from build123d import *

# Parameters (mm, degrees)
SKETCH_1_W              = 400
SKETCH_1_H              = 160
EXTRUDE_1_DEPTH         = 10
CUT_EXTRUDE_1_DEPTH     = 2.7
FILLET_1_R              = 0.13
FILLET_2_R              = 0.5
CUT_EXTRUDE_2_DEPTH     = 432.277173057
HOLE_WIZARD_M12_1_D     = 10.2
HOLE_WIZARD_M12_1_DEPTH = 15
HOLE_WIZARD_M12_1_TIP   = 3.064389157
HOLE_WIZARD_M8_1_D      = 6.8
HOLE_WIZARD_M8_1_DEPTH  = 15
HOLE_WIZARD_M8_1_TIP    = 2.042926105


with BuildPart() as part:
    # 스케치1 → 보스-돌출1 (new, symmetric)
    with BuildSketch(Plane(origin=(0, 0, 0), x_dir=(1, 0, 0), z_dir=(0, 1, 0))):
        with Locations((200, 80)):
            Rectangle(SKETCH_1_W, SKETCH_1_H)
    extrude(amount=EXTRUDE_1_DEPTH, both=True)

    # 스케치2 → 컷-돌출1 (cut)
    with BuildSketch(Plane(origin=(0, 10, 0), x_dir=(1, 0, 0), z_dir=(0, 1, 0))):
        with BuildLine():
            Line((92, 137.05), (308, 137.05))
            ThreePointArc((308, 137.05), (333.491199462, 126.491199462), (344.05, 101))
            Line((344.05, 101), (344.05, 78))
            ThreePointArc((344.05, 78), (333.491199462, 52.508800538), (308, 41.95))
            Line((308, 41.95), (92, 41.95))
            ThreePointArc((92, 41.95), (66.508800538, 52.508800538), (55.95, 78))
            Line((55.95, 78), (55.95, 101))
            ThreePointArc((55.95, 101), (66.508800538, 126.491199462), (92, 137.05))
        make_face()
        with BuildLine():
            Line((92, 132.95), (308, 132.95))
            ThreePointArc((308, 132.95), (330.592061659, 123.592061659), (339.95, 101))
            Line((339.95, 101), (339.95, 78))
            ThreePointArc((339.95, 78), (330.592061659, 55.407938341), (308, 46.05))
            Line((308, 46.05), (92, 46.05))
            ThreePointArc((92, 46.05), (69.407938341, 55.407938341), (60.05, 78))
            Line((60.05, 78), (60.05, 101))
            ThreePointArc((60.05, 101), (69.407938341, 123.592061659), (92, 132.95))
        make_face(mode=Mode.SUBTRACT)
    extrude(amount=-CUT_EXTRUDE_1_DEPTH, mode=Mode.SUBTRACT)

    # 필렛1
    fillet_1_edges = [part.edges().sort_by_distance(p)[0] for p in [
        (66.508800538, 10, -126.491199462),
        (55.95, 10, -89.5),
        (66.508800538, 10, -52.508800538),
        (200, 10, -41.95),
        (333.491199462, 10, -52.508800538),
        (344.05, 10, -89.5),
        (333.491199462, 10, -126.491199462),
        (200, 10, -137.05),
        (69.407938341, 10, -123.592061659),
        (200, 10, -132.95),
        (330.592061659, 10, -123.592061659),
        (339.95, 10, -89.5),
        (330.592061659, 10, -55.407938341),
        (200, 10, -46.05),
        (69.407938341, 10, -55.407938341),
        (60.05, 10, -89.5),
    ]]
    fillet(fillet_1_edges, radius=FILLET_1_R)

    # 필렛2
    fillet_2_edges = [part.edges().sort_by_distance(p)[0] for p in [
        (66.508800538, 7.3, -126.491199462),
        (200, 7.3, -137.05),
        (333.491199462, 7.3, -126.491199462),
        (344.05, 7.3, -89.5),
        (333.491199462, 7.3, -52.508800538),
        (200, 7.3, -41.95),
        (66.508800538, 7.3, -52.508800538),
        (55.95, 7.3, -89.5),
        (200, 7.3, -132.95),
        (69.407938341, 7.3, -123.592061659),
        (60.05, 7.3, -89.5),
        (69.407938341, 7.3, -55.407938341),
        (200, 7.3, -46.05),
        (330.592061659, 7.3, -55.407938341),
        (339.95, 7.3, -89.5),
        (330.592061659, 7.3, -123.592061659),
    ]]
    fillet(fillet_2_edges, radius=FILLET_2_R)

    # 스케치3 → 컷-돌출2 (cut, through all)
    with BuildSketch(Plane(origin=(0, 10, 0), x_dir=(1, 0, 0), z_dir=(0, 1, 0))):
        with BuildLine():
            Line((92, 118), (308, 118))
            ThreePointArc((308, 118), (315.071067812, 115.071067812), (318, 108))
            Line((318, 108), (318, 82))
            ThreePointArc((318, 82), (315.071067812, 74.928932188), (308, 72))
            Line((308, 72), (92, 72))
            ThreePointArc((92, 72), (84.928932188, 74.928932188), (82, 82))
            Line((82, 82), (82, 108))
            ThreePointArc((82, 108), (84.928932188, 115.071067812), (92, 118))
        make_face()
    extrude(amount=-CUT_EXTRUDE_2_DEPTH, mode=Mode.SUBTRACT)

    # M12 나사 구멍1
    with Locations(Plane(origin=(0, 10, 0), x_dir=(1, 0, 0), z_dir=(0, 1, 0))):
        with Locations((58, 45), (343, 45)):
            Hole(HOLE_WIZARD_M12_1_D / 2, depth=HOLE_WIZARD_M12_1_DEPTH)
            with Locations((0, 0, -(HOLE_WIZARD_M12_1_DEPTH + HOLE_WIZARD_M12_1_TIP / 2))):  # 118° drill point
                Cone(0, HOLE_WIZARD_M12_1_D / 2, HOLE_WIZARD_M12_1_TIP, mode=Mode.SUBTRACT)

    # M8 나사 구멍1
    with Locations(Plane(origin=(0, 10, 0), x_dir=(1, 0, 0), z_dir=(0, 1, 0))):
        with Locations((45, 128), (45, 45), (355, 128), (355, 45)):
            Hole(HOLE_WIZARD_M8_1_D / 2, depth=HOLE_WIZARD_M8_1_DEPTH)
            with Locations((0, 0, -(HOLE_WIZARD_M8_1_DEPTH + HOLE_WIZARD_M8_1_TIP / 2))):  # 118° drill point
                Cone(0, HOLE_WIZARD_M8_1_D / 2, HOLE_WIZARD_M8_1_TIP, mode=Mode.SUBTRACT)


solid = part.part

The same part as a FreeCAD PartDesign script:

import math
import FreeCAD as App
import Part
import Sketcher


def edges_at(feature, points):
    """Names of the edges that pass closest to the given points."""
    edges = feature.Shape.Edges
    near = lambda p: min(range(len(edges)), key=lambda i: edges[i].distToShape(Part.Vertex(*p))[0])
    return sorted({f"Edge{near(p) + 1}" for p in points})


def add_polygon(sketch, points):
    """Adds a closed chain of lines whose ends are joined by coincident constraints."""
    first, n = sketch.GeometryCount, len(points)
    for a, b in zip(points, points[1:] + points[:1]):
        sketch.addGeometry(Part.LineSegment(App.Vector(*a, 0), App.Vector(*b, 0)), False)
    for i in range(n):
        sketch.addConstraint(Sketcher.Constraint("Coincident", first + i, 2, first + (i + 1) % n, 1))

doc = App.newDocument("Part")
body = doc.addObject("PartDesign::Body", "Body")

# Sketch on XZ plane
sketch1 = body.newObject("Sketcher::SketchObject", "Sketch")
sketch1.AttachmentSupport = (doc.getObject("XZ_Plane"), [""])
sketch1.MapMode = "FlatFace"
add_polygon(sketch1, [(0, -160), (0, 0), (400, 0), (400, -160)])  # lines 0-3
sketch1.addConstraint([
    Sketcher.Constraint("Vertical", 0),
    Sketcher.Constraint("Horizontal", 1),
    Sketcher.Constraint("Vertical", 2),
    Sketcher.Constraint("Horizontal", 3),
    Sketcher.Constraint("Coincident", 0, 2, -1, 1),
    Sketcher.Constraint("DistanceX", 1, 1, 1, 2, 400.0),
    Sketcher.Constraint("DistanceY", 0, 1, 0, 2, 160.0),
])
pad1 = body.newObject("PartDesign::Pad", "Pad")
pad1.Profile = sketch1
pad1.Length = 20
pad1.Midplane = True

# Sketch on XZ plane
sketch2 = body.newObject("Sketcher::SketchObject", "Sketch001")
sketch2.AttachmentSupport = (doc.getObject("XZ_Plane"), [""])
sketch2.MapMode = "FlatFace"
sketch2.AttachmentOffset = App.Placement(App.Vector(0, 0, -10), App.Rotation())
sketch2.addGeometry([
    Part.LineSegment(App.Vector(308, -137, 0), App.Vector(92, -137, 0)),  # 0
    Part.ArcOfCircle(Part.Circle(App.Vector(92, -101, 0), App.Vector(0, 0, 1), 36), math.radians(180), math.radians(270)),  # 1
    Part.LineSegment(App.Vector(56, -101, 0), App.Vector(56, -78, 0)),  # 2
    Part.ArcOfCircle(Part.Circle(App.Vector(92, -78, 0), App.Vector(0, 0, 1), 36), math.radians(90), math.radians(180)),  # 3
    Part.LineSegment(App.Vector(92, -42, 0), App.Vector(308, -42, 0)),  # 4
    Part.ArcOfCircle(Part.Circle(App.Vector(308, -78, 0), App.Vector(0, 0, 1), 36), math.radians(0), math.radians(90)),  # 5
    Part.LineSegment(App.Vector(344, -78, 0), App.Vector(344, -101, 0)),  # 6
    Part.ArcOfCircle(Part.Circle(App.Vector(308, -101, 0), App.Vector(0, 0, 1), 36), math.radians(-90), math.radians(0)),  # 7
    Part.LineSegment(App.Vector(92, -133, 0), App.Vector(308, -133, 0)),  # 8
    Part.ArcOfCircle(Part.Circle(App.Vector(308, -101, 0), App.Vector(0, 0, 1), 32), math.radians(-90), math.radians(0)),  # 9
    Part.LineSegment(App.Vector(340, -101, 0), App.Vector(340, -78, 0)),  # 10
    Part.ArcOfCircle(Part.Circle(App.Vector(308, -78, 0), App.Vector(0, 0, 1), 32), math.radians(0), math.radians(90)),  # 11
    Part.LineSegment(App.Vector(308, -46, 0), App.Vector(92, -46, 0)),  # 12
    Part.ArcOfCircle(Part.Circle(App.Vector(92, -78, 0), App.Vector(0, 0, 1), 32), math.radians(90), math.radians(180)),  # 13
    Part.LineSegment(App.Vector(60, -78, 0), App.Vector(60, -101, 0)),  # 14
    Part.ArcOfCircle(Part.Circle(App.Vector(92, -101, 0), App.Vector(0, 0, 1), 32), math.radians(180), math.radians(270)),  # 15
], False)
sketch2.addConstraint([
    Sketcher.Constraint("Tangent", 0, 2, 1, 2),
    Sketcher.Constraint("Tangent", 1, 1, 2, 1),
    Sketcher.Constraint("Tangent", 2, 2, 3, 2),
    Sketcher.Constraint("Tangent", 3, 1, 4, 1),
    Sketcher.Constraint("Tangent", 4, 2, 5, 2),
    Sketcher.Constraint("Tangent", 5, 1, 6, 1),
    Sketcher.Constraint("Tangent", 6, 2, 7, 2),
    Sketcher.Constraint("Tangent", 7, 1, 0, 1),
    Sketcher.Constraint("Tangent", 8, 2, 9, 1),
    Sketcher.Constraint("Tangent", 9, 2, 10, 1),
    Sketcher.Constraint("Tangent", 10, 2, 11, 1),
    Sketcher.Constraint("Tangent", 11, 2, 12, 1),
    Sketcher.Constraint("Tangent", 12, 2, 13, 1),
    Sketcher.Constraint("Tangent", 13, 2, 14, 1),
    Sketcher.Constraint("Tangent", 14, 2, 15, 1),
    Sketcher.Constraint("Tangent", 15, 2, 8, 1),
    Sketcher.Constraint("Horizontal", 0),
    Sketcher.Constraint("Vertical", 2),
    Sketcher.Constraint("Horizontal", 4),
    Sketcher.Constraint("Vertical", 6),
    Sketcher.Constraint("Horizontal", 8),
    Sketcher.Constraint("Vertical", 10),
    Sketcher.Constraint("Horizontal", 12),
    Sketcher.Constraint("Vertical", 14),
    Sketcher.Constraint("Coincident", 9, 3, 7, 3),
    Sketcher.Constraint("Coincident", 11, 3, 5, 3),
    Sketcher.Constraint("Coincident", 13, 3, 3, 3),
    Sketcher.Constraint("Equal", 1, 3),
    Sketcher.Constraint("Equal", 3, 5),
    Sketcher.Constraint("Equal", 5, 7),
    Sketcher.Constraint("Equal", 13, 15),
    Sketcher.Constraint("DistanceX", 0, 2, 0, 1, 216.0),
    Sketcher.Constraint("DistanceY", 2, 1, 2, 2, 23.0),
    Sketcher.Constraint("Radius", 1, 36.05),
    Sketcher.Constraint("Radius", 9, 31.95),
    Sketcher.Constraint("DistanceX", -1, 1, 1, 3, 92.0),
    Sketcher.Constraint("DistanceY", 1, 3, -1, 1, 101.0),
])
pocket1 = body.newObject("PartDesign::Pocket", "Pocket")
pocket1.Profile = sketch2
pocket1.Length = 2.7
pocket1.Reversed = True
doc.recompute()

fillet = body.newObject("PartDesign::Fillet", "Fillet")
fillet.Base = (pocket1, edges_at(pocket1, [
    (66.509, 10, -126.491),
    (55.95, 10, -89.5),
    (66.509, 10, -52.509),
    (200, 10, -41.95),
    (333.491, 10, -52.509),
    (344.05, 10, -89.5),
    (333.491, 10, -126.491),
    (200, 10, -137.05),
    (69.408, 10, -123.592),
    (200, 10, -132.95),
    (330.592, 10, -123.592),
    (339.95, 10, -89.5),
    (330.592, 10, -55.408),
    (200, 10, -46.05),
    (69.408, 10, -55.408),
    (60.05, 10, -89.5),
]))
fillet.Radius = 0.13
doc.recompute()

fillet2 = body.newObject("PartDesign::Fillet", "Fillet001")
fillet2.Base = (fillet, edges_at(fillet, [
    (66.509, 7.3, -126.491),
    (200, 7.3, -137.05),
    (333.491, 7.3, -126.491),
    (344.05, 7.3, -89.5),
    (333.491, 7.3, -52.509),
    (200, 7.3, -41.95),
    (66.509, 7.3, -52.509),
    (55.95, 7.3, -89.5),
    (200, 7.3, -132.95),
    (69.408, 7.3, -123.592),
    (60.05, 7.3, -89.5),
    (69.408, 7.3, -55.408),
    (200, 7.3, -46.05),
    (330.592, 7.3, -55.408),
    (339.95, 7.3, -89.5),
    (330.592, 7.3, -123.592),
]))
fillet2.Radius = 0.5

# Sketch on XZ plane
sketch3 = body.newObject("Sketcher::SketchObject", "Sketch002")
sketch3.AttachmentSupport = (doc.getObject("XZ_Plane"), [""])
sketch3.MapMode = "FlatFace"
sketch3.AttachmentOffset = App.Placement(App.Vector(0, 0, -10), App.Rotation())
sketch3.addGeometry([
    Part.LineSegment(App.Vector(308, -118, 0), App.Vector(92, -118, 0)),  # 0
    Part.ArcOfCircle(Part.Circle(App.Vector(92, -108, 0), App.Vector(0, 0, 1), 10), math.radians(180), math.radians(270)),  # 1
    Part.LineSegment(App.Vector(82, -108, 0), App.Vector(82, -82, 0)),  # 2
    Part.ArcOfCircle(Part.Circle(App.Vector(92, -82, 0), App.Vector(0, 0, 1), 10), math.radians(90), math.radians(180)),  # 3
    Part.LineSegment(App.Vector(92, -72, 0), App.Vector(308, -72, 0)),  # 4
    Part.ArcOfCircle(Part.Circle(App.Vector(308, -82, 0), App.Vector(0, 0, 1), 10), math.radians(0), math.radians(90)),  # 5
    Part.LineSegment(App.Vector(318, -82, 0), App.Vector(318, -108, 0)),  # 6
    Part.ArcOfCircle(Part.Circle(App.Vector(308, -108, 0), App.Vector(0, 0, 1), 10), math.radians(-90), math.radians(0)),  # 7
], False)
sketch3.addConstraint([
    Sketcher.Constraint("Tangent", 0, 2, 1, 2),
    Sketcher.Constraint("Tangent", 1, 1, 2, 1),
    Sketcher.Constraint("Tangent", 2, 2, 3, 2),
    Sketcher.Constraint("Tangent", 3, 1, 4, 1),
    Sketcher.Constraint("Tangent", 4, 2, 5, 2),
    Sketcher.Constraint("Tangent", 5, 1, 6, 1),
    Sketcher.Constraint("Tangent", 6, 2, 7, 2),
    Sketcher.Constraint("Tangent", 7, 1, 0, 1),
    Sketcher.Constraint("Horizontal", 0),
    Sketcher.Constraint("Vertical", 2),
    Sketcher.Constraint("Horizontal", 4),
    Sketcher.Constraint("Vertical", 6),
    Sketcher.Constraint("Equal", 1, 3),
    Sketcher.Constraint("Equal", 3, 5),
    Sketcher.Constraint("Equal", 5, 7),
    Sketcher.Constraint("Radius", 1, 10.0),
    Sketcher.Constraint("DistanceX", 0, 2, 0, 1, 216.0),
    Sketcher.Constraint("DistanceY", 2, 1, 2, 2, 26.0),
    Sketcher.Constraint("DistanceX", -1, 1, 1, 3, 92.0),
    Sketcher.Constraint("DistanceY", 1, 3, -1, 1, 108.0),
])
pocket2 = body.newObject("PartDesign::Pocket", "Pocket001")
pocket2.Profile = sketch3
pocket2.Type = "ThroughAll"
pocket2.Reversed = True

# Sketch on XZ plane
sketch4 = body.newObject("Sketcher::SketchObject", "Sketch003")
sketch4.AttachmentSupport = (doc.getObject("XZ_Plane"), [""])
sketch4.MapMode = "FlatFace"
sketch4.AttachmentOffset = App.Placement(App.Vector(0, 0, -10), App.Rotation())
sketch4.addGeometry([
    Part.Circle(App.Vector(58, -45, 0), App.Vector(0, 0, 1), 5),
    Part.Circle(App.Vector(343, -45, 0), App.Vector(0, 0, 1), 5),
], False)
sketch4.addConstraint([
    Sketcher.Constraint("Equal", 0, 1),
    Sketcher.Constraint("Horizontal", 0, 3, 1, 3),
    Sketcher.Constraint("Diameter", 0, 10.2),
    Sketcher.Constraint("DistanceX", -1, 1, 0, 3, 58.0),
    Sketcher.Constraint("DistanceY", 0, 3, -1, 1, 45.0),
    Sketcher.Constraint("DistanceX", -1, 1, 1, 3, 343.0),
])
doc.recompute()
hole = body.newObject("PartDesign::Hole", "Hole")
hole.Profile = sketch4
hole.ThreadType = "None"
hole.Diameter = 10.2
hole.DepthType = "Dimension"
hole.Depth = 15
hole.DrillPoint = "Angled"
hole.DrillPointAngle = 118
hole.Reversed = True

# Sketch on XZ plane
sketch5 = body.newObject("Sketcher::SketchObject", "Sketch004")
sketch5.AttachmentSupport = (doc.getObject("XZ_Plane"), [""])
sketch5.MapMode = "FlatFace"
sketch5.AttachmentOffset = App.Placement(App.Vector(0, 0, -10), App.Rotation())
sketch5.addGeometry([
    Part.Circle(App.Vector(45, -128, 0), App.Vector(0, 0, 1), 3.4),
    Part.Circle(App.Vector(45, -45, 0), App.Vector(0, 0, 1), 3.4),
    Part.Circle(App.Vector(355, -128, 0), App.Vector(0, 0, 1), 3.4),
    Part.Circle(App.Vector(355, -45, 0), App.Vector(0, 0, 1), 3.4),
], False)
sketch5.addConstraint([
    Sketcher.Constraint("Equal", 0, 1),
    Sketcher.Constraint("Equal", 1, 2),
    Sketcher.Constraint("Equal", 2, 3),
    Sketcher.Constraint("Horizontal", 0, 3, 2, 3),
    Sketcher.Constraint("Horizontal", 1, 3, 3, 3),
    Sketcher.Constraint("Vertical", 0, 3, 1, 3),
    Sketcher.Constraint("Vertical", 2, 3, 3, 3),
    Sketcher.Constraint("Diameter", 0, 6.8),
    Sketcher.Constraint("DistanceX", -1, 1, 0, 3, 45.0),
    Sketcher.Constraint("DistanceY", 0, 3, -1, 1, 128.0),
    Sketcher.Constraint("DistanceY", 1, 3, -1, 1, 45.0),
    Sketcher.Constraint("DistanceX", -1, 1, 2, 3, 355.0),
])
doc.recompute()
hole2 = body.newObject("PartDesign::Hole", "Hole001")
hole2.Profile = sketch5
hole2.ThreadType = "None"
hole2.Diameter = 6.8
hole2.DepthType = "Dimension"
hole2.Depth = 15
hole2.DrillPoint = "Angled"
hole2.DrillPointAngle = 118
hole2.Reversed = True

doc.recompute()
